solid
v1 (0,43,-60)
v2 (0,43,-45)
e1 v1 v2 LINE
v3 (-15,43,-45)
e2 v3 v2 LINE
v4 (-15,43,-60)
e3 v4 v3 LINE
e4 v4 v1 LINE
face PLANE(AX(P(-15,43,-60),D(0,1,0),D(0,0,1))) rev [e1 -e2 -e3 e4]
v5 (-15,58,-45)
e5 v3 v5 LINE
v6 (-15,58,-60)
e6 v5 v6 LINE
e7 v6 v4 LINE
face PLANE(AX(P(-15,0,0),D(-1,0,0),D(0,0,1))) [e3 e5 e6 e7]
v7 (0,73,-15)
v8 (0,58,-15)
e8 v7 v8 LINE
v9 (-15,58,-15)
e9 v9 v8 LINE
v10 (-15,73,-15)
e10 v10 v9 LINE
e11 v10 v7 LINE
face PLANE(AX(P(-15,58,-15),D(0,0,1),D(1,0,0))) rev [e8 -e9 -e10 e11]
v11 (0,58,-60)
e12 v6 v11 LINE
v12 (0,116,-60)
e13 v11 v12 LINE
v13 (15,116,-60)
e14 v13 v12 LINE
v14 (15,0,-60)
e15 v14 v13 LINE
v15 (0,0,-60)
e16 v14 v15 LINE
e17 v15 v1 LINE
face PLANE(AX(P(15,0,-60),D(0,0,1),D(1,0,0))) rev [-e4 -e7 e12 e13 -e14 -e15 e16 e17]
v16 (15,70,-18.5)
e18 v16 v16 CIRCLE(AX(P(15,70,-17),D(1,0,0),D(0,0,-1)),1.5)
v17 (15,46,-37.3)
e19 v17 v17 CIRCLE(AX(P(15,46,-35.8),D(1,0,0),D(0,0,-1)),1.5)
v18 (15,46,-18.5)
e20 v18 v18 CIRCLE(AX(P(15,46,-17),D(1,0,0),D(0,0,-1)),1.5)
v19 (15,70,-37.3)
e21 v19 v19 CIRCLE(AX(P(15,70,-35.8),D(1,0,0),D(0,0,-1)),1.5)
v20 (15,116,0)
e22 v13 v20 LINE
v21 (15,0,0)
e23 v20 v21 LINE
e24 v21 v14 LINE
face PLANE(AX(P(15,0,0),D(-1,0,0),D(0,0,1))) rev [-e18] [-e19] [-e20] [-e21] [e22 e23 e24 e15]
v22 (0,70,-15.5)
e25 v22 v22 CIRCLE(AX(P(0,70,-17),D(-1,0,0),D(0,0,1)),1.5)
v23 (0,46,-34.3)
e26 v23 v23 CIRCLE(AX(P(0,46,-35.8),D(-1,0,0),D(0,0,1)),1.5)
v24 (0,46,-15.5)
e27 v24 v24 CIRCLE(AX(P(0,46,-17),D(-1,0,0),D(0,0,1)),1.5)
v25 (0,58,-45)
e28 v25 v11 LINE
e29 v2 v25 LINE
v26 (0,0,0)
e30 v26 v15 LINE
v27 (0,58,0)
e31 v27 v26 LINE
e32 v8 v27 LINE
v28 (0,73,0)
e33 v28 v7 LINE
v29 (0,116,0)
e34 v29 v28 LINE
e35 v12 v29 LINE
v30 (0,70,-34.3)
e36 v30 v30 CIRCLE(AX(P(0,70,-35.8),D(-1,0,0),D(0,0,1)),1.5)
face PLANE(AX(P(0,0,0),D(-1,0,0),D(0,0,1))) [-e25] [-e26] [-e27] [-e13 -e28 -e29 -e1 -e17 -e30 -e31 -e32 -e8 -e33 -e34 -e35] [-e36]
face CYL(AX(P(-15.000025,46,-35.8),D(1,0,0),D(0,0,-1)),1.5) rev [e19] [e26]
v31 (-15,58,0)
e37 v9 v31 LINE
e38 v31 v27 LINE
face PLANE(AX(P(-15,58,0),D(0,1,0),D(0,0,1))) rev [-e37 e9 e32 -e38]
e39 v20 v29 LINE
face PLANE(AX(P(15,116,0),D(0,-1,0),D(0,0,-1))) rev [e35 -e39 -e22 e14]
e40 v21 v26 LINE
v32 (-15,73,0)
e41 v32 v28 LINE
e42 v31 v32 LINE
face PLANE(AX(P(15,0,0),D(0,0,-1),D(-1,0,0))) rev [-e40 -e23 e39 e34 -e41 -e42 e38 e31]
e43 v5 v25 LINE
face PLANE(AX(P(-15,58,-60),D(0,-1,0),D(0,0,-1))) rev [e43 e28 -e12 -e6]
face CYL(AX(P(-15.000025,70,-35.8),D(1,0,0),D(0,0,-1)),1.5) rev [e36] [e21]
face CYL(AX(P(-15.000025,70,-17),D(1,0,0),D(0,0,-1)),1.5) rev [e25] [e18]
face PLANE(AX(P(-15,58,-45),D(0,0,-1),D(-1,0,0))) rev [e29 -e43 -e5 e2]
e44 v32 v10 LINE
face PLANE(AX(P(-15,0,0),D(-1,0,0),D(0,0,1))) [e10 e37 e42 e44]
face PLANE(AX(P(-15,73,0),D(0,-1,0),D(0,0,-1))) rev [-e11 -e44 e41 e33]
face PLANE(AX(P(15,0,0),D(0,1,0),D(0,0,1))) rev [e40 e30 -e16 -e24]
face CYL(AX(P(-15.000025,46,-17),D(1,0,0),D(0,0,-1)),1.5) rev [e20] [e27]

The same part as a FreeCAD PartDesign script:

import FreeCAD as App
import Part
import Sketcher


def add_polygon(sketch, points):
    """Adds a closed chain of lines whose ends are joined by coincident constraints."""
    first, n = sketch.GeometryCount, len(points)
    for a, b in zip(points, points[1:] + points[:1]):
        sketch.addGeometry(Part.LineSegment(App.Vector(*a, 0), App.Vector(*b, 0)), False)
    for i in range(n):
        sketch.addConstraint(Sketcher.Constraint("Coincident", first + i, 2, first + (i + 1) % n, 1))

doc = App.newDocument("Part")
body = doc.addObject("PartDesign::Body", "Body")

# Sketch on YZ plane
sketch1 = doc.addObject("Sketcher::SketchObject", "Sketch")
body.addObject(sketch1)
sketch1.AttachmentSupport = (doc.YZ_Plane, [""])
sketch1.MapMode = "FlatFace"
add_polygon(sketch1, [(116, 0), (0, 0), (0, -60), (116, -60)])  # lines 0-3
sketch1.addConstraint([
    Sketcher.Constraint("Horizontal", 0),
    Sketcher.Constraint("Vertical", 1),
    Sketcher.Constraint("Horizontal", 2),
    Sketcher.Constraint("Vertical", 3),
    Sketcher.Constraint("Coincident", 0, 2, -1, 1),
    Sketcher.Constraint("DistanceX", 0, 2, 0, 1, 116.0),
    Sketcher.Constraint("DistanceY", 1, 2, 1, 1, 60.0),
])
pad1 = doc.addObject("PartDesign::Pad", "Pad")
body.addObject(pad1)
pad1.Profile = sketch1
pad1.Length = 15

# Sketch on YZ plane
sketch2 = doc.addObject("Sketcher::SketchObject", "Sketch001")
body.addObject(sketch2)
sketch2.AttachmentSupport = (doc.YZ_Plane, [""])
sketch2.MapMode = "FlatFace"
add_polygon(sketch2, [(58, -60), (43, -60), (43, -45), (58, -45)])  # lines 0-3
add_polygon(sketch2, [(73, -15), (58, -15), (58, 0), (73, 0)])  # lines 4-7
sketch2.addConstraint([
    Sketcher.Constraint("Horizontal", 0),
    Sketcher.Constraint("Vertical", 1),
    Sketcher.Constraint("Horizontal", 2),
    Sketcher.Constraint("Vertical", 3),
    Sketcher.Constraint("Horizontal", 4),
    Sketcher.Constraint("Vertical", 5),
    Sketcher.Constraint("Horizontal", 6),
    Sketcher.Constraint("Vertical", 7),
    Sketcher.Constraint("PointOnObject", 5, 2, -1),
    Sketcher.Constraint("Vertical", 3, 2, 4, 2),
    Sketcher.Constraint("Equal", 2, 4),
    Sketcher.Constraint("Equal", 6, 1),
    Sketcher.Constraint("Equal", 3, 5),
    Sketcher.Constraint("DistanceX", 0, 2, 0, 1, 15.0),
    Sketcher.Constraint("DistanceX", -1, 1, 0, 2, 43.0),
    Sketcher.Constraint("DistanceY", 0, 2, -1, 1, 60.0),
])
pad2 = doc.addObject("PartDesign::Pad", "Pad001")
body.addObject(pad2)
pad2.Profile = sketch2
pad2.Length = 15
pad2.Reversed = True

# Sketch on YZ plane
sketch3 = doc.addObject("Sketcher::SketchObject", "Sketch002")
body.addObject(sketch3)
sketch3.AttachmentSupport = (doc.YZ_Plane, [""])
sketch3.MapMode = "FlatFace"
sketch3.AttachmentOffset = App.Placement(App.Vector(0, 0, 15), App.Rotation())
sketch3.addGeometry([
    Part.Circle(App.Vector(70, -17, 0), App.Vector(0, 0, 1), 1.5),
    Part.Circle(App.Vector(46, -17, 0), App.Vector(0, 0, 1), 1.5),
    Part.Circle(App.Vector(70, -35.8, 0), App.Vector(0, 0, 1), 1.5),
    Part.Circle(App.Vector(46, -35.8, 0), App.Vector(0, 0, 1), 1.5),
], False)
sketch3.addConstraint([
    Sketcher.Constraint("Equal", 0, 1),
    Sketcher.Constraint("Equal", 1, 2),
    Sketcher.Constraint("Equal", 2, 3),
    Sketcher.Constraint("Horizontal", 0, 3, 1, 3),
    Sketcher.Constraint("Horizontal", 2, 3, 3, 3),
    Sketcher.Constraint("Vertical", 0, 3, 2, 3),
    Sketcher.Constraint("Vertical", 1, 3, 3, 3),
    Sketcher.Constraint("Diameter", 0, 3.0),
    Sketcher.Constraint("DistanceX", -1, 1, 0, 3, 70.0),
    Sketcher.Constraint("DistanceY", 0, 3, -1, 1, 17.0),
    Sketcher.Constraint("DistanceX", -1, 1, 1, 3, 46.0),
    Sketcher.Constraint("DistanceY", 2, 3, -1, 1, 35.8),
])
pocket1 = doc.addObject("PartDesign::Pocket", "Pocket")
body.addObject(pocket1)
pocket1.Profile = sketch3
pocket1.Type = "ThroughAll"

doc.recompute()
